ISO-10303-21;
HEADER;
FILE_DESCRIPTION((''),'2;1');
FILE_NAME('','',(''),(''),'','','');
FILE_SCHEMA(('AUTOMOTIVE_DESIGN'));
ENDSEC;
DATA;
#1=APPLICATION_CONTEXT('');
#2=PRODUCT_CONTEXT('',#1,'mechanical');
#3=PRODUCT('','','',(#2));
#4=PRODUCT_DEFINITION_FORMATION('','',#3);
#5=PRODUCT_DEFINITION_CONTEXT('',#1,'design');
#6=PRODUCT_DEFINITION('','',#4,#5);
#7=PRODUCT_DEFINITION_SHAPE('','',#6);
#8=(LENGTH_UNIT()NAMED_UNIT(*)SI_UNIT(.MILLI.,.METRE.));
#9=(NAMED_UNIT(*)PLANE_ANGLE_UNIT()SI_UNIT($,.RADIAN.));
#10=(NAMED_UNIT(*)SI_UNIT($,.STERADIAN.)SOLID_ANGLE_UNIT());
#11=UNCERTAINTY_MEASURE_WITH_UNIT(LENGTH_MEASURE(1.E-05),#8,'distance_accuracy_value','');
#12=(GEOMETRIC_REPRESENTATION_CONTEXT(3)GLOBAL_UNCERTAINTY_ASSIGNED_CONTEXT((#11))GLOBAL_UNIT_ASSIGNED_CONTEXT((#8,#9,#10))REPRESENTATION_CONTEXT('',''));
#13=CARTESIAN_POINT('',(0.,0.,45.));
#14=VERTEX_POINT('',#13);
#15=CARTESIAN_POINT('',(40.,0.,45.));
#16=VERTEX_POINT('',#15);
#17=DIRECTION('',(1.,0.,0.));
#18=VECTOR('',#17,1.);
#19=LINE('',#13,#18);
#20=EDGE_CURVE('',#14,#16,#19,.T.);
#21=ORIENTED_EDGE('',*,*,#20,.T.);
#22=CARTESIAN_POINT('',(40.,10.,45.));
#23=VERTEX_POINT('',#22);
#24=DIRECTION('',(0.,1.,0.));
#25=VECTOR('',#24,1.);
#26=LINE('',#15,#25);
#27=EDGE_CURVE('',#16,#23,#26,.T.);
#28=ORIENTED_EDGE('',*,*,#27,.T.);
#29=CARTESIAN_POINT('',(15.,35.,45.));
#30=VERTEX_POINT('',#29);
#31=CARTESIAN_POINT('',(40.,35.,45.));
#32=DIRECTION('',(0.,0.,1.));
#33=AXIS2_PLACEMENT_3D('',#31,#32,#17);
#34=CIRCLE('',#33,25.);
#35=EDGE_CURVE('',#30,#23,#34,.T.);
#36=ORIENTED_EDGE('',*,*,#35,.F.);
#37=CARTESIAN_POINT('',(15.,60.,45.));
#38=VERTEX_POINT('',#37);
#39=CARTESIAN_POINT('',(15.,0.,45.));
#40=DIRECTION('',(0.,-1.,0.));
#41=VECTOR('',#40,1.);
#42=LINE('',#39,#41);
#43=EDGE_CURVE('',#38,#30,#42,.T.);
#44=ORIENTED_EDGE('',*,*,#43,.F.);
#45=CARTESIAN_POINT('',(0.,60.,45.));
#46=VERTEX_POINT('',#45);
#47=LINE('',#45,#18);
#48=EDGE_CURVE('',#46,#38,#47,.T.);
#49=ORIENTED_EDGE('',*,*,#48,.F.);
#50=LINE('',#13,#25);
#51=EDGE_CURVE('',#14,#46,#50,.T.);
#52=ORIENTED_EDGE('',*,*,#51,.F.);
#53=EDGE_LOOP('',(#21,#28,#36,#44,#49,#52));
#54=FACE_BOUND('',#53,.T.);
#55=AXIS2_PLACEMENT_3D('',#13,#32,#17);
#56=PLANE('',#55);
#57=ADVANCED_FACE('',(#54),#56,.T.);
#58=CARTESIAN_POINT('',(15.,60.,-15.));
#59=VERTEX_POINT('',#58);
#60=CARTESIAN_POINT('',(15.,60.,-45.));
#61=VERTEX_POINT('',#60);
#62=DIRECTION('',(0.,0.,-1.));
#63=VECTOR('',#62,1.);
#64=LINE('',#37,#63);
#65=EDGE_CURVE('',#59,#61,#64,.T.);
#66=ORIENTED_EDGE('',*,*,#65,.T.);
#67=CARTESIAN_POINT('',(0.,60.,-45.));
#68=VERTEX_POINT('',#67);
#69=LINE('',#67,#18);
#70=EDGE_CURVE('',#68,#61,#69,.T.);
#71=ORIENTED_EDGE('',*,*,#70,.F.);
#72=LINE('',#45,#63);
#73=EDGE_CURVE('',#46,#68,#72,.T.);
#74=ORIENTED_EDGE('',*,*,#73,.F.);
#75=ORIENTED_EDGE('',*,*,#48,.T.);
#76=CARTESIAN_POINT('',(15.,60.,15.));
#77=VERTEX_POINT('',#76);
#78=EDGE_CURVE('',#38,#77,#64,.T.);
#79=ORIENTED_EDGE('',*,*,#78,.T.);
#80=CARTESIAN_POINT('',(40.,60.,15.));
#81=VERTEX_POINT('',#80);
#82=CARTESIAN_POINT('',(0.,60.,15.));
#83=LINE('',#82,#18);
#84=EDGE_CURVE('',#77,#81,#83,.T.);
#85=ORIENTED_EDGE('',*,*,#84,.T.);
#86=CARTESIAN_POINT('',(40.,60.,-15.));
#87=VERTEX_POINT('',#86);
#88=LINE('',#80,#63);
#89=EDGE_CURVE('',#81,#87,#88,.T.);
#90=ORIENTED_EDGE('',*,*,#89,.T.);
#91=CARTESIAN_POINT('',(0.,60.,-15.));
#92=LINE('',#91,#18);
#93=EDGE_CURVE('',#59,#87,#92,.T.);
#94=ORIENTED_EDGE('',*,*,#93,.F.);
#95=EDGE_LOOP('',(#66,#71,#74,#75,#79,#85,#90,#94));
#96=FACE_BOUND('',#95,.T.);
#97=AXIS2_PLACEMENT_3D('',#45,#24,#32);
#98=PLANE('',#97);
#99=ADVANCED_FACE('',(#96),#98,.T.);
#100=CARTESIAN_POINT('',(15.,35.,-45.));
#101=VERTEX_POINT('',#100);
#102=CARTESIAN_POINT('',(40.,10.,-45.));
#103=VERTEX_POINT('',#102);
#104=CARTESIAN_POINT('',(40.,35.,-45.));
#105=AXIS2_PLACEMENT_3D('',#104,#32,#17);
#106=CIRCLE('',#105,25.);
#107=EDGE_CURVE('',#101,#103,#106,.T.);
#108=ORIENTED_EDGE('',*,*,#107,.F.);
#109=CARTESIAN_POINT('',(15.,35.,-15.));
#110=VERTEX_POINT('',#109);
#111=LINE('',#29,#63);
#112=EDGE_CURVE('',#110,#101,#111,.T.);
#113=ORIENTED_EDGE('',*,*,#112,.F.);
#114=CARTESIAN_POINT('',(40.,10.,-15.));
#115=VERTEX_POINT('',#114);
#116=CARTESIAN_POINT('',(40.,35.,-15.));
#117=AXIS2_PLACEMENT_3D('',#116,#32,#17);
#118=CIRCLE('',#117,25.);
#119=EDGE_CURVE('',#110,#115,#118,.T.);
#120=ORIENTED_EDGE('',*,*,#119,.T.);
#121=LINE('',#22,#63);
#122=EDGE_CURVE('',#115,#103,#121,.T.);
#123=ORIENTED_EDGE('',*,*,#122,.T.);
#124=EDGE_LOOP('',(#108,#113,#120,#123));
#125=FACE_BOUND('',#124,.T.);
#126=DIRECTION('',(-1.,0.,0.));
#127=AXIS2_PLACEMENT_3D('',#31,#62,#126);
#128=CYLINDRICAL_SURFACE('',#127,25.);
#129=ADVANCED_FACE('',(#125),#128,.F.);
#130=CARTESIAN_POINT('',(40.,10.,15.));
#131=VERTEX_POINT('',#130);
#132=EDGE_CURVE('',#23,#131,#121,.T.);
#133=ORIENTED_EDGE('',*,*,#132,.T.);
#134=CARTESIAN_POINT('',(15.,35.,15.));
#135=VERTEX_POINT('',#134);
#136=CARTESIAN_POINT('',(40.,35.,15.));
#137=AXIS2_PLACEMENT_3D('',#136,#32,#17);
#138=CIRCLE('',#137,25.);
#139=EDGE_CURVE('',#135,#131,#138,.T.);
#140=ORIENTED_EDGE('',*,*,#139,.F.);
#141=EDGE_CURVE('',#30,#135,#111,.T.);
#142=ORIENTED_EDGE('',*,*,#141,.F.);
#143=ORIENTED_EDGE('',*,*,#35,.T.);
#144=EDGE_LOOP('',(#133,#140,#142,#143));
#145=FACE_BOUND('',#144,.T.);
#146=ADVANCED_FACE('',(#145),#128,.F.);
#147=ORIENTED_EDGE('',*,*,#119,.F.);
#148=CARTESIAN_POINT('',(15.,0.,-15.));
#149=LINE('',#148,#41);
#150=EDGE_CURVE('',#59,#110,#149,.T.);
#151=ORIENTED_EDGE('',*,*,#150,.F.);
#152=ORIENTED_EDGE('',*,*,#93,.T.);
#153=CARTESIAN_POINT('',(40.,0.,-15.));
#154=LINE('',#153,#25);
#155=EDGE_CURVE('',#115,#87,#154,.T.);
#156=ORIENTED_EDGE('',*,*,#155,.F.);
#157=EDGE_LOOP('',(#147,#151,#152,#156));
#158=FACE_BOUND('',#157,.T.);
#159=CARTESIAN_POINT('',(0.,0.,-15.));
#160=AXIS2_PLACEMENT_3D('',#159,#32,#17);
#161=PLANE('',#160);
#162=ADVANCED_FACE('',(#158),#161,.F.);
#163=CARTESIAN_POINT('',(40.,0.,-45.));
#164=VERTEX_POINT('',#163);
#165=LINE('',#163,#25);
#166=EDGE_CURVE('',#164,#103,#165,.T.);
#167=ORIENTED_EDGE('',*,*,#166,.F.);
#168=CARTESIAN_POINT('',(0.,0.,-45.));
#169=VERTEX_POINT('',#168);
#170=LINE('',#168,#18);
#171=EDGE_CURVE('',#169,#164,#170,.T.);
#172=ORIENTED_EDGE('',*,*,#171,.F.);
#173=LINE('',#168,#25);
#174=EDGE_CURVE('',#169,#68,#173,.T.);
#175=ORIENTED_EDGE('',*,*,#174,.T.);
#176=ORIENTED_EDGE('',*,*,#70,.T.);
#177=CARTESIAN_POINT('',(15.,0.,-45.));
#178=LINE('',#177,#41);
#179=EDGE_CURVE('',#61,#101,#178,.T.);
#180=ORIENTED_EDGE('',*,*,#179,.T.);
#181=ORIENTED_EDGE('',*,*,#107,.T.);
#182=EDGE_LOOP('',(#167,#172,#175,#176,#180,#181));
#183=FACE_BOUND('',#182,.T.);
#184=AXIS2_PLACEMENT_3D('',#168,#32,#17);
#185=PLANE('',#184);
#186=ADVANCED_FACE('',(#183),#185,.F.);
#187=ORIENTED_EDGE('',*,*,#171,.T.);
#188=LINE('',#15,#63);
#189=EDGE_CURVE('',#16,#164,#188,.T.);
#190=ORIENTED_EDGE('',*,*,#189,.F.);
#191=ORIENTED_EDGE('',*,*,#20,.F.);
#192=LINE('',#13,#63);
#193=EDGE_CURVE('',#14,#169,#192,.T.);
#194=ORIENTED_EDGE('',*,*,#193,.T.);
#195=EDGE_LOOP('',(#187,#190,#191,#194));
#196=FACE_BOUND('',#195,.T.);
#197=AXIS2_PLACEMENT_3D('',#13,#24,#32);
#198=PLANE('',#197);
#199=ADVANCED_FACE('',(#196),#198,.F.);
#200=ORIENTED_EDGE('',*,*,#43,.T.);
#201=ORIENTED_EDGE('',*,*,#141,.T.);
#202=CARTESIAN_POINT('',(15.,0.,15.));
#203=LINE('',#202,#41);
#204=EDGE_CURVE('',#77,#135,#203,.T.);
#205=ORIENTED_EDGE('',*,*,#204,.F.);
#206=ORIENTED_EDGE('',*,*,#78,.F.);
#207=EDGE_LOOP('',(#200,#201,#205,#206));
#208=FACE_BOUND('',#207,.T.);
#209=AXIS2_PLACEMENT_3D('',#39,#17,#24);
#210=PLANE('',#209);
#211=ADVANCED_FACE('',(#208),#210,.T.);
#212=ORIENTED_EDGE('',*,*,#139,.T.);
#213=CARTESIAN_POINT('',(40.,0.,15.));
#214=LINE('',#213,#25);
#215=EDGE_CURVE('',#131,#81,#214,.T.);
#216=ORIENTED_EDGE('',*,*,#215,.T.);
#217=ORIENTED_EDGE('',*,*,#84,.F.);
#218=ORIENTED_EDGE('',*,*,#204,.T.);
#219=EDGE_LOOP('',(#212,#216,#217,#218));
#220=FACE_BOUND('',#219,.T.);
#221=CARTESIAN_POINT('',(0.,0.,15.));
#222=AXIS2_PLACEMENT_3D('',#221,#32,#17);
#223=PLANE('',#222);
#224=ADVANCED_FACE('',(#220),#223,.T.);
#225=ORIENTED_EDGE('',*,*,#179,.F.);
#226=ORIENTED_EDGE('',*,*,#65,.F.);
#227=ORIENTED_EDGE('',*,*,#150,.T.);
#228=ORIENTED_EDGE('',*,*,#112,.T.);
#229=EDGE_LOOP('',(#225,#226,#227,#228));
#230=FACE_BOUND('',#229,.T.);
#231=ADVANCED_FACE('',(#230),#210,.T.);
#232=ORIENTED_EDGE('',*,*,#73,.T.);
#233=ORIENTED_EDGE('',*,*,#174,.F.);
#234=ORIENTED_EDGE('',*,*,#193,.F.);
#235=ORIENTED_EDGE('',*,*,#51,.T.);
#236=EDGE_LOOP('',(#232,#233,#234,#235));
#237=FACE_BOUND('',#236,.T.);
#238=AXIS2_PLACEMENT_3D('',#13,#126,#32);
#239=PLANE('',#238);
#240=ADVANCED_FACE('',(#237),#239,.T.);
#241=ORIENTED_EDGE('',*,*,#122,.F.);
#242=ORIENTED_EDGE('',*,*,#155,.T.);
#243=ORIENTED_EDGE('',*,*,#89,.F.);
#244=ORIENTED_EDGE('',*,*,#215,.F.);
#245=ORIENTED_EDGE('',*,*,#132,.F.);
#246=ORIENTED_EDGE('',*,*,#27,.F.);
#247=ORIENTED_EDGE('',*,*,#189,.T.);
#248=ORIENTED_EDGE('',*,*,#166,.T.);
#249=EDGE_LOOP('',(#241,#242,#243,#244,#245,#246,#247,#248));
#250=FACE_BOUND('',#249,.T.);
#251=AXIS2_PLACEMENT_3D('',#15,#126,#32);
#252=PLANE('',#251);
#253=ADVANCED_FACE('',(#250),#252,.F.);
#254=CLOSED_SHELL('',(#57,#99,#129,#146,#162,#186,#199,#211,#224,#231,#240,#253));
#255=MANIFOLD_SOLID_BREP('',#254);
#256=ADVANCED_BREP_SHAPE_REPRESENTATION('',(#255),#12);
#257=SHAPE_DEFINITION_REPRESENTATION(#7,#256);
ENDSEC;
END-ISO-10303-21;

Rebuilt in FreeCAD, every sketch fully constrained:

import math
import FreeCAD as App
import Part
import Sketcher
from FreeCAD import Vector

doc = App.newDocument("Part")
body = doc.addObject("PartDesign::Body", "Body")

# Sketch on XY plane
sketch1 = doc.addObject("Sketcher::SketchObject", "Sketch")
body.addObject(sketch1)
sketch1.AttachmentSupport = (doc.XY_Plane, [""])
sketch1.MapMode = "FlatFace"
sketch1.addGeometry([
    Part.LineSegment(Vector(0, 0, 0), Vector(40, 0, 0)),  # 0
    Part.LineSegment(Vector(40, 0, 0), Vector(40, 10, 0)),  # 1
    Part.ArcOfCircle(Part.Circle(Vector(40, 35, 0), Vector(0, 0, 1), 25), math.radians(180), math.radians(270)),  # 2
    Part.LineSegment(Vector(15, 35, 0), Vector(15, 60, 0)),  # 3
    Part.LineSegment(Vector(15, 60, 0), Vector(0, 60, 0)),  # 4
    Part.LineSegment(Vector(0, 60, 0), Vector(0, 0, 0)),  # 5
], False)
sketch1.addConstraint([
    Sketcher.Constraint("Coincident", 0, 2, 1, 1),
    Sketcher.Constraint("Coincident", 1, 2, 2, 2),
    Sketcher.Constraint("Tangent", 2, 1, 3, 1),
    Sketcher.Constraint("Coincident", 3, 2, 4, 1),
    Sketcher.Constraint("Coincident", 4, 2, 5, 1),
    Sketcher.Constraint("Coincident", 5, 2, 0, 1),
    Sketcher.Constraint("Horizontal", 0),
    Sketcher.Constraint("Vertical", 1),
    Sketcher.Constraint("Vertical", 3),
    Sketcher.Constraint("Horizontal", 4),
    Sketcher.Constraint("Vertical", 5),
    Sketcher.Constraint("Coincident", 5, 2, -1, 1),
    Sketcher.Constraint("Vertical", 2, 3, 0, 2),
    Sketcher.Constraint("Radius", 2, 25.0),
    Sketcher.Constraint("DistanceX", 0, 1, 0, 2, 40.0),
    Sketcher.Constraint("DistanceY", 1, 1, 1, 2, 10.0),
    Sketcher.Constraint("DistanceY", 3, 1, 3, 2, 25.0),
])
pad1 = doc.addObject("PartDesign::Pad", "Pad")
body.addObject(pad1)
pad1.Profile = sketch1
pad1.Length = 90
pad1.Midplane = True

# Sketch on XY plane
sketch2 = doc.addObject("Sketcher::SketchObject", "Sketch001")
body.addObject(sketch2)
sketch2.AttachmentSupport = (doc.XY_Plane, [""])
sketch2.MapMode = "FlatFace"
sketch2.addGeometry([
    Part.ArcOfCircle(Part.Circle(Vector(40, 35, 0), Vector(0, 0, 1), 25), math.radians(180), math.radians(270)),
    Part.LineSegment(Vector(40, 10, 0), Vector(40, 60, 0)),
    Part.LineSegment(Vector(40, 60, 0), Vector(15, 60, 0)),
    Part.LineSegment(Vector(15, 60, 0), Vector(15, 35, 0)),
], False)
sketch2.addConstraint([
    Sketcher.Constraint("Coincident", 0, 2, 1, 1),
    Sketcher.Constraint("Coincident", 1, 2, 2, 1),
    Sketcher.Constraint("Coincident", 2, 2, 3, 1),
    Sketcher.Constraint("Tangent", 3, 2, 0, 1),
    Sketcher.Constraint("Vertical", 1),
    Sketcher.Constraint("Horizontal", 2),
    Sketcher.Constraint("Vertical", 3),
    Sketcher.Constraint("Equal", 2, 3),
    Sketcher.Constraint("Radius", 0, 25.0),
    Sketcher.Constraint("DistanceX", 2, 2, 2, 1, 25.0),
    Sketcher.Constraint("DistanceX", -1, 1, 0, 3, 40.0),
    Sketcher.Constraint("DistanceY", -1, 1, 0, 3, 35.0),
])
pad2 = doc.addObject("PartDesign::Pad", "Pad001")
body.addObject(pad2)
pad2.Profile = sketch2
pad2.Length = 30
pad2.Midplane = True

doc.recompute()
